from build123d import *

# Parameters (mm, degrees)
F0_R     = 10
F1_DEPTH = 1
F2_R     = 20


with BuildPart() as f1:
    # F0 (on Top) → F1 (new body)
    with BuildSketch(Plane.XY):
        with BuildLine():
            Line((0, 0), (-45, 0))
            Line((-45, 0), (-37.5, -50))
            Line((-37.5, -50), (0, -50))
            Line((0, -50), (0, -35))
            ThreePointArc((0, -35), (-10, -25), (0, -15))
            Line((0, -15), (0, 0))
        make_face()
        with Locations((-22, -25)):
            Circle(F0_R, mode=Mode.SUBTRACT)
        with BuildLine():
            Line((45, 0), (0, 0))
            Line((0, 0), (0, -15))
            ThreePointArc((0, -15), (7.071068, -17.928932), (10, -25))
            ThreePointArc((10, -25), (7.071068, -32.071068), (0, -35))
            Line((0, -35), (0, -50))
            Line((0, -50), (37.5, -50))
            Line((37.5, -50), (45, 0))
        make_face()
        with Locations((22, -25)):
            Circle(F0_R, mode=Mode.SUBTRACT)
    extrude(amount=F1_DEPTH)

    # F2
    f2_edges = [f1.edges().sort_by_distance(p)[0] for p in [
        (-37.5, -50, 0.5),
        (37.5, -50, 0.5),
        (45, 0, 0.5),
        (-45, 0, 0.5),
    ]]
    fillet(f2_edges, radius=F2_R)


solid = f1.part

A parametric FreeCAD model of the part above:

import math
import FreeCAD as App
import Part
import Sketcher

V = App.Vector


def edges_at(feature, points):
    """Names of the edges that pass closest to the given points."""
    edges = feature.Shape.Edges
    near = lambda p: min(range(len(edges)), key=lambda i: edges[i].distToShape(Part.Vertex(*p))[0])
    return sorted({f"Edge{near(p) + 1}" for p in points})

doc = App.newDocument("Part")
body = doc.addObject("PartDesign::Body", "Body")

# Sketch on XY plane
sketch1 = doc.addObject("Sketcher::SketchObject", "Sketch")
body.addObject(sketch1)
sketch1.AttachmentSupport = (doc.XY_Plane, [""])
sketch1.MapMode = "FlatFace"
sketch1.addGeometry([
    Part.LineSegment(V(-45, 0, 0), V(-38, -50, 0)),  # 0
    Part.LineSegment(V(-38, -50, 0), V(38, -50, 0)),  # 1
    Part.LineSegment(V(38, -50, 0), V(45, 0, 0)),  # 2
    Part.LineSegment(V(45, 0, 0), V(-45, 0, 0)),  # 3
    Part.Circle(V(-22, -25, 0), V(0, 0, 1), 10),  # 4
    Part.ArcOfCircle(Part.Circle(V(0, -25, 0), V(0, 0, 1), 10), math.radians(90), math.radians(270)),  # 5
    Part.ArcOfCircle(Part.Circle(V(0, -25, 0), V(0, 0, 1), 10), math.radians(0), math.radians(90)),  # 6
    Part.ArcOfCircle(Part.Circle(V(0, -25, 0), V(0, 0, 1), 10), math.radians(-90), math.radians(0)),  # 7
    Part.Circle(V(22, -25, 0), V(0, 0, 1), 10),  # 8
], False)
sketch1.addConstraint([
    Sketcher.Constraint("Coincident", 0, 2, 1, 1),
    Sketcher.Constraint("Coincident", 1, 2, 2, 1),
    Sketcher.Constraint("Coincident", 2, 2, 3, 1),
    Sketcher.Constraint("Coincident", 3, 2, 0, 1),
    Sketcher.Constraint("Tangent", 5, 1, 6, 2),
    Sketcher.Constraint("Tangent", 6, 1, 7, 2),
    Sketcher.Constraint("Tangent", 7, 1, 5, 2),
    Sketcher.Constraint("Horizontal", 1),
    Sketcher.Constraint("Horizontal", 3),
    Sketcher.Constraint("Equal", 4, 5),
    Sketcher.Constraint("Equal", 7, 8),
    Sketcher.Constraint("Symmetric", 2, 2, 3, 2, -1, 1),
    Sketcher.Constraint("Symmetric", 4, 3, 8, 3, -2),
    Sketcher.Constraint("PointOnObject", 5, 3, -2),
    Sketcher.Constraint("PointOnObject", 5, 1, -2),
    Sketcher.Constraint("PointOnObject", 7, 1, -2),
    Sketcher.Constraint("Horizontal", 4, 3, 5, 3),
    Sketcher.Constraint("Horizontal", 8, 3, 6, 1),
    Sketcher.Constraint("Equal", 0, 2),
    Sketcher.Constraint("Diameter", 4, 20.0),
    Sketcher.Constraint("DistanceX", 1, 1, 1, 2, 75.0),
    Sketcher.Constraint("DistanceX", 3, 2, 3, 1, 90.0),
    Sketcher.Constraint("DistanceX", 4, 3, -1, 1, 22.0),
    Sketcher.Constraint("DistanceY", 4, 3, -1, 1, 25.0),
    Sketcher.Constraint("DistanceY", 0, 2, -1, 1, 50.0),
])
pad1 = doc.addObject("PartDesign::Pad", "Pad")
body.addObject(pad1)
pad1.Profile = sketch1
pad1.Length = 1
doc.recompute()

fillet = doc.addObject("PartDesign::Fillet", "Fillet")
body.addObject(fillet)
fillet.Base = (pad1, edges_at(pad1, [
    (-37.5, -50, 0.5),
    (37.5, -50, 0.5),
    (45, 0, 0.5),
    (-45, 0, 0.5),
]))
fillet.Radius = 20

doc.recompute()
